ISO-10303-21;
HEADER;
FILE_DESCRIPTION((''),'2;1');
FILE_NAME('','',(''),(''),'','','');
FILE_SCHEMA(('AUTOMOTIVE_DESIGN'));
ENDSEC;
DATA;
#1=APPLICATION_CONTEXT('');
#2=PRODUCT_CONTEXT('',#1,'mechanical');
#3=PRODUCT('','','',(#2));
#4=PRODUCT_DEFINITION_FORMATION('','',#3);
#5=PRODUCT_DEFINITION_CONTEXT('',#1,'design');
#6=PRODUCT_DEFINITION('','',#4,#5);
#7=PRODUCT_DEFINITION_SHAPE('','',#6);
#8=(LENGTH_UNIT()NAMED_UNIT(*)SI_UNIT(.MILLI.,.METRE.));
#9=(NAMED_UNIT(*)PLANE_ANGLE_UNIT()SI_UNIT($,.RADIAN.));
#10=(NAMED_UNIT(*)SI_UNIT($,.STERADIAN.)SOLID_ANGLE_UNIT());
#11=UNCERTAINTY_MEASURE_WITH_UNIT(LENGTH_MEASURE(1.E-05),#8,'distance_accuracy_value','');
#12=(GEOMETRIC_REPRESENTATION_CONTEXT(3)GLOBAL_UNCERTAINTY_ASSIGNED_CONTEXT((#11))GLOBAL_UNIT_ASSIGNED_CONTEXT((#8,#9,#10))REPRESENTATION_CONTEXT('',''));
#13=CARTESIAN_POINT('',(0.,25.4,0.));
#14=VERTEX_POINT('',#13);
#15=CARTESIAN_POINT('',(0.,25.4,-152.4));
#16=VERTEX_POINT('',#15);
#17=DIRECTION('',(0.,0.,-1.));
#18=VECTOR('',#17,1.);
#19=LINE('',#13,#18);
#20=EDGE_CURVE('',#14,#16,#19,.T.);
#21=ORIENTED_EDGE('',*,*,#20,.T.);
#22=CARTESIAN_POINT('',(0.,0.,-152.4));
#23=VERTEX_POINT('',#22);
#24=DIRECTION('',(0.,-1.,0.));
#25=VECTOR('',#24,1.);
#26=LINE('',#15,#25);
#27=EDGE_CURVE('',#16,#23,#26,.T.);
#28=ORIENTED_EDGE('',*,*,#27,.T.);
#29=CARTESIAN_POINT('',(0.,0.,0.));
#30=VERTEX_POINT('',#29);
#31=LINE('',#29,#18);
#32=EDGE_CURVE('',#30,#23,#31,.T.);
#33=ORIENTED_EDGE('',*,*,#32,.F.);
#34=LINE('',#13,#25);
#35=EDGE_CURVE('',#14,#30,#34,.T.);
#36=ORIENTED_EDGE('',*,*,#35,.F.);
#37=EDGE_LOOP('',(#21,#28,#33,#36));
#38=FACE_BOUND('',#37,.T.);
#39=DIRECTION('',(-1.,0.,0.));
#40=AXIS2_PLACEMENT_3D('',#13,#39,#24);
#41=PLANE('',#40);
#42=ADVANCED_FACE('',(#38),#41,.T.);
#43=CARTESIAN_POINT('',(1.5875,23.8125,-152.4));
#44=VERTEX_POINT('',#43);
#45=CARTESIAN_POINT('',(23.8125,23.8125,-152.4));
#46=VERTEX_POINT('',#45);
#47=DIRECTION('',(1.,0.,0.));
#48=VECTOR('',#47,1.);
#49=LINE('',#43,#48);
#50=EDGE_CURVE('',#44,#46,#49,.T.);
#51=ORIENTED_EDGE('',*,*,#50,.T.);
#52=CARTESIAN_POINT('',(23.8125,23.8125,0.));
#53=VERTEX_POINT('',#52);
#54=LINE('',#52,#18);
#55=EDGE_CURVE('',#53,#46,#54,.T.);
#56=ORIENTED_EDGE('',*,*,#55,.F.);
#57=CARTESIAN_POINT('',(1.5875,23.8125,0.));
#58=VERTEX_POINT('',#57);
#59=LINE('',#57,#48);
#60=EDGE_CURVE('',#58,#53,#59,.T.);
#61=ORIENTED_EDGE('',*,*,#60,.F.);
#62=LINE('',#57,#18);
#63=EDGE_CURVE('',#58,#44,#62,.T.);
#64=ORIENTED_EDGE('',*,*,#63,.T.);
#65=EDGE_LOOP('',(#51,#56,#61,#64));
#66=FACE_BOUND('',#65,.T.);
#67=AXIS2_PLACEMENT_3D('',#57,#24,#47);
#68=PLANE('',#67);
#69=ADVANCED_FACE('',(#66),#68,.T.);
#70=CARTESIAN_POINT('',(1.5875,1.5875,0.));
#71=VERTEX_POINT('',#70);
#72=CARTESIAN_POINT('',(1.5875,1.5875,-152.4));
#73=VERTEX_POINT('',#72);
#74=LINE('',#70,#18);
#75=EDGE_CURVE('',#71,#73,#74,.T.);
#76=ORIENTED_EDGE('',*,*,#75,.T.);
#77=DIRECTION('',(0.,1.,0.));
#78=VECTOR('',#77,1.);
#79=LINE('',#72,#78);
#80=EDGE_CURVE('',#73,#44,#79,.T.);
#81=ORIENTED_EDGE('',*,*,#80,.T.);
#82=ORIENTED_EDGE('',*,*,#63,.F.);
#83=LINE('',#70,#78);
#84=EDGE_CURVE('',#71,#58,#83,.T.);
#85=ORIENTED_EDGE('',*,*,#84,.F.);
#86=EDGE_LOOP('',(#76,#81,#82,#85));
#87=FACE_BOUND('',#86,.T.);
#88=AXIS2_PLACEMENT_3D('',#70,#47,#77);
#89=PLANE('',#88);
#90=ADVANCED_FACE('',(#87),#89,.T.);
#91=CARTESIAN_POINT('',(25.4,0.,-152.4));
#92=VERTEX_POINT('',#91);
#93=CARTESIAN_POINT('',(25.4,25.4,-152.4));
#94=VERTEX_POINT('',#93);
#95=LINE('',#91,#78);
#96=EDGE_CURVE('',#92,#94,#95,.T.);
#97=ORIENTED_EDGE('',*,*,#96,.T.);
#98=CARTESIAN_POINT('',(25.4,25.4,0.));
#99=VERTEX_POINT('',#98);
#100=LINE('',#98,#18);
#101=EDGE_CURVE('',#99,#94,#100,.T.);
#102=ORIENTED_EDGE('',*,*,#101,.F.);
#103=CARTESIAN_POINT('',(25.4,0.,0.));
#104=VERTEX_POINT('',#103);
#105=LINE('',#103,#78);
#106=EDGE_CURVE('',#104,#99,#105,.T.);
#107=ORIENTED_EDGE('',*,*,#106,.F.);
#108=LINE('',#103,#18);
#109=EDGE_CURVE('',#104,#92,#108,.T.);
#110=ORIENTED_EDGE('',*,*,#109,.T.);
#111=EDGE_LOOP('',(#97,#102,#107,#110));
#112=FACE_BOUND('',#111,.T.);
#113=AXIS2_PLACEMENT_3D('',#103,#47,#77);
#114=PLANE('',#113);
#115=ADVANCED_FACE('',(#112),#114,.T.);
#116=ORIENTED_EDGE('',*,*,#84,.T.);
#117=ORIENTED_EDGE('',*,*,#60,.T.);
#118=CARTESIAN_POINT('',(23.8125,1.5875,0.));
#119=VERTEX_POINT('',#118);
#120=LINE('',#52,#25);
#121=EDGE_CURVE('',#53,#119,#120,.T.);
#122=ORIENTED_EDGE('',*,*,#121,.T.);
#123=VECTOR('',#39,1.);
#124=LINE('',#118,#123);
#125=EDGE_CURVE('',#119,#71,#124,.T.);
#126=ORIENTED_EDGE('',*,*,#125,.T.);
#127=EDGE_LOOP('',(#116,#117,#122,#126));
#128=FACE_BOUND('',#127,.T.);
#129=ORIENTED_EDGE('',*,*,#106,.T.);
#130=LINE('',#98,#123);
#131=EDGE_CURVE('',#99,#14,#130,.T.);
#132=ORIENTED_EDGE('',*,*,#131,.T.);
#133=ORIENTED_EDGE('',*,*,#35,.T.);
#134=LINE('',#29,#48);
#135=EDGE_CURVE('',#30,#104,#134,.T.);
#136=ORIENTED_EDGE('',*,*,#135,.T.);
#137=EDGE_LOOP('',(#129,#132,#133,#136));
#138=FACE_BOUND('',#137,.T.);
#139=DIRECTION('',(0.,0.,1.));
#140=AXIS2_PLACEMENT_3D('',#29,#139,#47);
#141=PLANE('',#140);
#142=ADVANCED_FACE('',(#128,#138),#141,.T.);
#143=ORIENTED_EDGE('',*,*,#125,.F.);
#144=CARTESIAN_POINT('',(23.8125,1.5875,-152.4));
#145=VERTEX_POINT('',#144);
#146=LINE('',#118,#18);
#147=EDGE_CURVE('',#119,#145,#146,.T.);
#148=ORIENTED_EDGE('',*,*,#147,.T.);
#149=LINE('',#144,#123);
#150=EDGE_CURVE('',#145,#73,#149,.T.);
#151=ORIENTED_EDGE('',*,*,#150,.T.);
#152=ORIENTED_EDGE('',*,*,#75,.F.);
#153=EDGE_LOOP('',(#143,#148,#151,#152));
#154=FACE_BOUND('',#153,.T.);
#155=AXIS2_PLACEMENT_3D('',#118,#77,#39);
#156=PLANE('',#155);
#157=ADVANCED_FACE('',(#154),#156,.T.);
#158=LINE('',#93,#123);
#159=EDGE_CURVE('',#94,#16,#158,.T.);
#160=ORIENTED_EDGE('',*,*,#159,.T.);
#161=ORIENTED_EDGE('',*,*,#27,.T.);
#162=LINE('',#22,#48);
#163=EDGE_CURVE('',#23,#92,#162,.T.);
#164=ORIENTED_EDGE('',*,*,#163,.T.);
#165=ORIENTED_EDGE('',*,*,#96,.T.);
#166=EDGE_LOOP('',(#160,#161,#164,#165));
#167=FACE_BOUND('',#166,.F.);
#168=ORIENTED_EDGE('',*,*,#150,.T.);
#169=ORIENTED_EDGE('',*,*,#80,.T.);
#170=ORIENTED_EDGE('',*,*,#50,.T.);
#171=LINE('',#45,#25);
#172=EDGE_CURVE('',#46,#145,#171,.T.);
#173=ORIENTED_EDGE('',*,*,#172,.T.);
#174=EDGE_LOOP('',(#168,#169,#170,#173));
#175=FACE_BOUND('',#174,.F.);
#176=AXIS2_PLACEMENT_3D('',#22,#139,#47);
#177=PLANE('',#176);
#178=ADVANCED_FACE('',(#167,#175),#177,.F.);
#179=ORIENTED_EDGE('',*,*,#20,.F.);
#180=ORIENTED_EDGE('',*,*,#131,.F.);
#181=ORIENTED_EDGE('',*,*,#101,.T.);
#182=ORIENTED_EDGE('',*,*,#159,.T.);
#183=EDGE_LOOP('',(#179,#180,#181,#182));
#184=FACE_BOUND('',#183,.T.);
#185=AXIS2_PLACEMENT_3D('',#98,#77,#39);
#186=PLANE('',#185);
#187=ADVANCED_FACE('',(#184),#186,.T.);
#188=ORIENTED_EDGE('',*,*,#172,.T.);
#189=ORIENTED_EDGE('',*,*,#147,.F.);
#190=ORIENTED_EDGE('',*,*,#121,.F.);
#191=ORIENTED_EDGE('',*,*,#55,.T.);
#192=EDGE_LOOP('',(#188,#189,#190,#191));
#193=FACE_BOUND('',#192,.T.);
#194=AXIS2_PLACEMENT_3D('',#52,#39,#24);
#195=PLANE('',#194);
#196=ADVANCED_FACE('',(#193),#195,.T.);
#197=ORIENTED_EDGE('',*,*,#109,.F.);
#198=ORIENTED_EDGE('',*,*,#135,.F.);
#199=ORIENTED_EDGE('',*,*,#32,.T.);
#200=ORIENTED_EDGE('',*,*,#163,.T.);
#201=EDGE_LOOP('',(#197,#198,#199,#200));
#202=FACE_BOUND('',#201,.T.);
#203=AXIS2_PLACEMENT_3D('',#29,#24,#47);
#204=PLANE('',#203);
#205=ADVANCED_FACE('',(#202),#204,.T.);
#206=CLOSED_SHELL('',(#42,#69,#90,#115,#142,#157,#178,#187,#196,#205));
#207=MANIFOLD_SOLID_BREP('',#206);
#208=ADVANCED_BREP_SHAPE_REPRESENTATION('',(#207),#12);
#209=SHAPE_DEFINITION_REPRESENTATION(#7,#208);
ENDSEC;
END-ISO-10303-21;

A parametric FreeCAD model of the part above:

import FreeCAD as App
import Part
import Sketcher
Q = App.Units.Quantity

doc = App.newDocument("Part")
body = doc.addObject("PartDesign::Body", "Body")

# Sketch on XY plane
sketch1 = body.newObject("Sketcher::SketchObject", "Sketch")
sketch1.AttachmentSupport = (doc.getObject("XY_Plane"), [""])
sketch1.MapMode = "FlatFace"
sketch1.addGeometry([
    Part.LineSegment(App.Vector(0, 25, 0), App.Vector(0, 0, 0)),  # 0
    Part.LineSegment(App.Vector(0, 0, 0), App.Vector(25, 0, 0)),  # 1
    Part.LineSegment(App.Vector(25, 0, 0), App.Vector(25, 25, 0)),  # 2
    Part.LineSegment(App.Vector(25, 25, 0), App.Vector(0, 25, 0)),  # 3
    Part.LineSegment(App.Vector(2, 2, 0), App.Vector(2, 24, 0)),  # 4
    Part.LineSegment(App.Vector(2, 24, 0), App.Vector(24, 24, 0)),  # 5
    Part.LineSegment(App.Vector(24, 24, 0), App.Vector(24, 2, 0)),  # 6
    Part.LineSegment(App.Vector(24, 2, 0), App.Vector(2, 2, 0)),  # 7
], False)
sketch1.addConstraint([
    Sketcher.Constraint("Coincident", 0, 2, 1, 1),
    Sketcher.Constraint("Coincident", 1, 2, 2, 1),
    Sketcher.Constraint("Coincident", 2, 2, 3, 1),
    Sketcher.Constraint("Coincident", 3, 2, 0, 1),
    Sketcher.Constraint("Coincident", 4, 2, 5, 1),
    Sketcher.Constraint("Coincident", 5, 2, 6, 1),
    Sketcher.Constraint("Coincident", 6, 2, 7, 1),
    Sketcher.Constraint("Coincident", 7, 2, 4, 1),
    Sketcher.Constraint("Vertical", 0),
    Sketcher.Constraint("Horizontal", 1),
    Sketcher.Constraint("Vertical", 2),
    Sketcher.Constraint("Horizontal", 3),
    Sketcher.Constraint("Vertical", 4),
    Sketcher.Constraint("Horizontal", 5),
    Sketcher.Constraint("Vertical", 6),
    Sketcher.Constraint("Horizontal", 7),
    Sketcher.Constraint("Coincident", 0, 2, -1, 1),
    Sketcher.Constraint("Equal", 3, 0),
    Sketcher.Constraint("Equal", 7, 4),
    Sketcher.Constraint("DistanceX", 1, 1, 1, 2, Q("1 in")),
    Sketcher.Constraint("DistanceX", -1, 1, 4, 2, Q("0.0625 in")),
    Sketcher.Constraint("DistanceY", -1, 1, 6, 2, Q("0.0625 in")),
    Sketcher.Constraint("DistanceY", 4, 2, 3, 2, Q("0.0625 in")),
])
pad1 = body.newObject("PartDesign::Pad", "Pad")
pad1.Profile = sketch1
pad1.Length = Q("6 in")
pad1.Reversed = True

doc.recompute()
